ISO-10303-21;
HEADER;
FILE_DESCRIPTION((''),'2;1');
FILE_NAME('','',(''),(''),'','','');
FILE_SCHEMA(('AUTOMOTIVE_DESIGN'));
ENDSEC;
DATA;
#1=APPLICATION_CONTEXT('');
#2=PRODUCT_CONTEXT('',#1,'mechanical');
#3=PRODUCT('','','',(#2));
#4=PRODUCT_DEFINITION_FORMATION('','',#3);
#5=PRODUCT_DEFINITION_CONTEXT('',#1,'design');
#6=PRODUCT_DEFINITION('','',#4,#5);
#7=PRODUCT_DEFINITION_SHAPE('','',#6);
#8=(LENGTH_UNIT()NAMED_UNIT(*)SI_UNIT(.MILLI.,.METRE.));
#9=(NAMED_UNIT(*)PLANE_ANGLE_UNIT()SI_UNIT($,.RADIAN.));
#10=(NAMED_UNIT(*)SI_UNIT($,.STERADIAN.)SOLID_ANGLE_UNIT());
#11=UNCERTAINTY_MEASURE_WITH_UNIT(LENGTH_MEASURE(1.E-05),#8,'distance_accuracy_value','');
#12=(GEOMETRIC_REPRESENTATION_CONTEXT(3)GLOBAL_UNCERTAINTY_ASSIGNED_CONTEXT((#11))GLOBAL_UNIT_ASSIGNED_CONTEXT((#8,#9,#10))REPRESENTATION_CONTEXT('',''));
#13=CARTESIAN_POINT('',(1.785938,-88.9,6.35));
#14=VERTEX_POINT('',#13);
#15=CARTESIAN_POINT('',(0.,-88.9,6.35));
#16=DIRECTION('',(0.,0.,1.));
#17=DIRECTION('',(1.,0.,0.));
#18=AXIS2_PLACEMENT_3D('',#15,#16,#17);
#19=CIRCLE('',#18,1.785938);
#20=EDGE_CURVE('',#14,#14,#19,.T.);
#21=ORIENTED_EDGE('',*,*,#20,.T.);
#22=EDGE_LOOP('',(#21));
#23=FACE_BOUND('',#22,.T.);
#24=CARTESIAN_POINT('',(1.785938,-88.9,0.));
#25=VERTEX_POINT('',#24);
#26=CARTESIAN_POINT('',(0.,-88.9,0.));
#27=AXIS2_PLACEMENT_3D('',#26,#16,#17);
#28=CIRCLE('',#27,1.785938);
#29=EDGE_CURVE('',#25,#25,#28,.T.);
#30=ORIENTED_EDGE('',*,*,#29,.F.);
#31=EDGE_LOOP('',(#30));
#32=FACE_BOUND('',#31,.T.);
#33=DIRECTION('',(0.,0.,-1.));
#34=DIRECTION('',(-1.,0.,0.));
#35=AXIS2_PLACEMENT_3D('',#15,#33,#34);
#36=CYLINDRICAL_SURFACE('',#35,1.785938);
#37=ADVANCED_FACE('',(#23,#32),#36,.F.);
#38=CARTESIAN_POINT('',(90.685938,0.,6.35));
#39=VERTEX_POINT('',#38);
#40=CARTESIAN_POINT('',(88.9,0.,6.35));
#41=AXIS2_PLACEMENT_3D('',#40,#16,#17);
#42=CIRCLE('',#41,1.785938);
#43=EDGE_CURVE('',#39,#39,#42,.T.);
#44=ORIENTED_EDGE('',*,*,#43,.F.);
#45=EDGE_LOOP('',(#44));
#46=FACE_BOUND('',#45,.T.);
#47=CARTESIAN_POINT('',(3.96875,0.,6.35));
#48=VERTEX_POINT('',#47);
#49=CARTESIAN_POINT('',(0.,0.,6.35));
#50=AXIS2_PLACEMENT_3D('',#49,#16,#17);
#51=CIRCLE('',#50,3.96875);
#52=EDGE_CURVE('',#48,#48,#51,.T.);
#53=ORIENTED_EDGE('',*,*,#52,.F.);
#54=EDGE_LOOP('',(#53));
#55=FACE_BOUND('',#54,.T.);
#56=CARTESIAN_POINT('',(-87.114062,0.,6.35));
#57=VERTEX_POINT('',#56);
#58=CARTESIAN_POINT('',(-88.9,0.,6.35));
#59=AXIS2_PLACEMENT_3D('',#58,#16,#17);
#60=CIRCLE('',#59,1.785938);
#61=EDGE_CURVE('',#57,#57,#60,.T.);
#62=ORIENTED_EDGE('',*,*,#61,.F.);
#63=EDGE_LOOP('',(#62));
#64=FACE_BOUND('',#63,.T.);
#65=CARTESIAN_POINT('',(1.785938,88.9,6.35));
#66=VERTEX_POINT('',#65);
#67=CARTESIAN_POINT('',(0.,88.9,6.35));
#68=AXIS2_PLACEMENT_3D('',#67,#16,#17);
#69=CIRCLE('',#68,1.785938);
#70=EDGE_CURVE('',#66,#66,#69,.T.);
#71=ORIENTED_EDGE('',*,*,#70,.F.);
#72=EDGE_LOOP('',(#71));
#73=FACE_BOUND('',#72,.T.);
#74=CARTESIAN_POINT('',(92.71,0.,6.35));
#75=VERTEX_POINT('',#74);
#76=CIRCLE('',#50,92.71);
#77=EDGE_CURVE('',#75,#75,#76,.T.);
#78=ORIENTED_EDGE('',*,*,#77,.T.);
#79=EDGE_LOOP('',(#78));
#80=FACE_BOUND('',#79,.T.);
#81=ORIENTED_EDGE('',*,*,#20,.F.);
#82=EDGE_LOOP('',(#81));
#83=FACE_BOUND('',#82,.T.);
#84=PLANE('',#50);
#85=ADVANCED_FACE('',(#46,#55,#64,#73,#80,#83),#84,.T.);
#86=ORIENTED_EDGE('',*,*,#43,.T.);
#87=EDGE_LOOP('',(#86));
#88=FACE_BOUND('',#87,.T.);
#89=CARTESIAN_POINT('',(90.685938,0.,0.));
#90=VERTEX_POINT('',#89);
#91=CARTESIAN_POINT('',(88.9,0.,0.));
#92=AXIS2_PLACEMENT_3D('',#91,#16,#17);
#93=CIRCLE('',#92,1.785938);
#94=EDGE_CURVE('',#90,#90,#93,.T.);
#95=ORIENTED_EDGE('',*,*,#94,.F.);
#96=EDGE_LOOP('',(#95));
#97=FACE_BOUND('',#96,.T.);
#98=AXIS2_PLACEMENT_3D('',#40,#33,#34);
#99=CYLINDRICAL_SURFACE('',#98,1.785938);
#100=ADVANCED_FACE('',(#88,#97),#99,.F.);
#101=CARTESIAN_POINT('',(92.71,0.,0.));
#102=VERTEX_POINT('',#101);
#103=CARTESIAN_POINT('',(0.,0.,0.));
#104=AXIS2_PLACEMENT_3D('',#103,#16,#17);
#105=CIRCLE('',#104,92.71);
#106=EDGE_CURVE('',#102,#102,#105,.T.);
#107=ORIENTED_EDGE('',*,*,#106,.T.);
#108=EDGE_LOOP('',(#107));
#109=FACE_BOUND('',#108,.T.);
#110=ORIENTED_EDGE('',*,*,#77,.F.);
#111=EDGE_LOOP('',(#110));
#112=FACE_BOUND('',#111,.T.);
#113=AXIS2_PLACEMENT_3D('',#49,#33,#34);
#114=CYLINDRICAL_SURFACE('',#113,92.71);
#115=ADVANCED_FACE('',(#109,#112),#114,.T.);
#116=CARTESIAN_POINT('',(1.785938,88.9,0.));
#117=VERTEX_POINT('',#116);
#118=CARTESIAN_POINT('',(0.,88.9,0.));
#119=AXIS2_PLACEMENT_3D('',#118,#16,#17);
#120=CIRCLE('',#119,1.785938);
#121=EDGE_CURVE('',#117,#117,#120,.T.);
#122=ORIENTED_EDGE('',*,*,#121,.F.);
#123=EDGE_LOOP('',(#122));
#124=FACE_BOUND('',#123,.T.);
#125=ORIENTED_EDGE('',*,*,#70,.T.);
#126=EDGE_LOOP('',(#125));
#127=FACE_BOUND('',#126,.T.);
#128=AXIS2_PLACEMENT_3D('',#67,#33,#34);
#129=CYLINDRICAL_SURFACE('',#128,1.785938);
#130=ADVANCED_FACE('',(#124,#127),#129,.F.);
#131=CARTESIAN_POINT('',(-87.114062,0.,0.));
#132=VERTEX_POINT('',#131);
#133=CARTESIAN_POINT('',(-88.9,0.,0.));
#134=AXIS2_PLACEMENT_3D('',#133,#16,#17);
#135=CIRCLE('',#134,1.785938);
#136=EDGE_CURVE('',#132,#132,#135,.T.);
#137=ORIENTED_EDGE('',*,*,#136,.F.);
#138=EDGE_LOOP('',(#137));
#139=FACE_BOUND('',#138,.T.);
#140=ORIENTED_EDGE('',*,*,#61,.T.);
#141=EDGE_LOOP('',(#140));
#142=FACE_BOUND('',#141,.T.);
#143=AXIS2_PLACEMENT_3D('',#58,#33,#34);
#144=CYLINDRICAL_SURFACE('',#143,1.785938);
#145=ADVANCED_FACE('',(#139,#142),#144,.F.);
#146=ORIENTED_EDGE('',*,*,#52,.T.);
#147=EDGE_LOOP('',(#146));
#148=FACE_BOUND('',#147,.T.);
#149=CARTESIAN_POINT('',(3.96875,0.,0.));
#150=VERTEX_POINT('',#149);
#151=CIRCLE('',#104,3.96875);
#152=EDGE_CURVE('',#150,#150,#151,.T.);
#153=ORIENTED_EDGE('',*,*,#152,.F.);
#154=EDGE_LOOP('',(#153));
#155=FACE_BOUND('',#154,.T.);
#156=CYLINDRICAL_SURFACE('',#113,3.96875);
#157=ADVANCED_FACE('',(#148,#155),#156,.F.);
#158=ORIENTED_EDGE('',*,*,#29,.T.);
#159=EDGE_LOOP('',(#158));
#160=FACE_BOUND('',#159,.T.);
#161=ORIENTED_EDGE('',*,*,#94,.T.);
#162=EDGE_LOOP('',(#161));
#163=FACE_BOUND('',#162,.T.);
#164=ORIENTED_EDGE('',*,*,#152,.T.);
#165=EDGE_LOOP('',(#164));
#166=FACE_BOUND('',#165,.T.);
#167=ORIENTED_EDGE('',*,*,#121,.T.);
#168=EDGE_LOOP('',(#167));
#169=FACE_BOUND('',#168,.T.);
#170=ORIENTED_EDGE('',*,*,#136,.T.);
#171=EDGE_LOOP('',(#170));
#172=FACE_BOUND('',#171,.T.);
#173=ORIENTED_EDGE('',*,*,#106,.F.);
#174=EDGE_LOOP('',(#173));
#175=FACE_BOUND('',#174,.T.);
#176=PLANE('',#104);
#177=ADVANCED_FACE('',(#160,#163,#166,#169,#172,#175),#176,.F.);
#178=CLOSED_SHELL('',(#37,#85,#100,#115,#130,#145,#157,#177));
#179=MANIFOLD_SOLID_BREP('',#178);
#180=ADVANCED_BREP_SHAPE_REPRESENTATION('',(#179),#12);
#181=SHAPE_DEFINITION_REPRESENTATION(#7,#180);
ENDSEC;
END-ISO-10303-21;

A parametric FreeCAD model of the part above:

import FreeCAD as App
import Part
import Sketcher

V = App.Vector
Q = App.Units.Quantity

doc = App.newDocument("Part")
body = doc.addObject("PartDesign::Body", "Body")

sketch1 = body.newObject("Sketcher::SketchObject", "Sketch")
sketch1.AttachmentSupport = (doc.getObject("XY_Plane"), [""])
sketch1.MapMode = "FlatFace"
sketch1.addGeometry(Part.Circle(V(0, 0, 0), V(0, 0, 1), 92.71), False)
sketch1.addGeometry(Part.Circle(V(0, -88.9, 0), V(0, 0, 1), 1.785937), False)
sketch1.addGeometry(Part.Circle(V(-88.9, 0, 0), V(0, 0, 1), 1.785937), False)
sketch1.addGeometry(Part.Circle(V(0, 0, 0), V(0, 0, 1), 3.96875), False)
sketch1.addGeometry(Part.Circle(V(88.9, 0, 0), V(0, 0, 1), 1.785937), False)
sketch1.addGeometry(Part.Circle(V(0, 88.9, 0), V(0, 0, 1), 1.785937), False)
sketch1.addConstraint(Sketcher.Constraint("Coincident", 0, 3, -1, 1))
sketch1.addConstraint(Sketcher.Constraint("Coincident", 3, 3, -1, 1))
sketch1.addConstraint(Sketcher.Constraint("Equal", 1, 2))
sketch1.addConstraint(Sketcher.Constraint("Equal", 2, 4))
sketch1.addConstraint(Sketcher.Constraint("Equal", 4, 5))
sketch1.addConstraint(Sketcher.Constraint("Symmetric", 2, 3, 4, 3, -1, 1))
sketch1.addConstraint(Sketcher.Constraint("Symmetric", 1, 3, 5, 3, -1, 1))
sketch1.addConstraint(Sketcher.Constraint("PointOnObject", 1, 3, -2))
sketch1.addConstraint(Sketcher.Constraint("PointOnObject", 2, 3, -1))
sketch1.addConstraint(Sketcher.Constraint("Diameter", 0, Q("7.3 in")))
sketch1.addConstraint(Sketcher.Constraint("Diameter", 1, Q("0.140625 in")))
sketch1.addConstraint(Sketcher.Constraint("Diameter", 3, Q("0.3125 in")))
sketch1.addConstraint(Sketcher.Constraint("DistanceX", 2, 3, 4, 3, Q("7 in")))
sketch1.addConstraint(Sketcher.Constraint("DistanceY", 1, 3, 5, 3, Q("7 in")))
pad1 = body.newObject("PartDesign::Pad", "Pad")
pad1.Profile = sketch1
pad1.Length = Q("0.25 in")

doc.recompute()
